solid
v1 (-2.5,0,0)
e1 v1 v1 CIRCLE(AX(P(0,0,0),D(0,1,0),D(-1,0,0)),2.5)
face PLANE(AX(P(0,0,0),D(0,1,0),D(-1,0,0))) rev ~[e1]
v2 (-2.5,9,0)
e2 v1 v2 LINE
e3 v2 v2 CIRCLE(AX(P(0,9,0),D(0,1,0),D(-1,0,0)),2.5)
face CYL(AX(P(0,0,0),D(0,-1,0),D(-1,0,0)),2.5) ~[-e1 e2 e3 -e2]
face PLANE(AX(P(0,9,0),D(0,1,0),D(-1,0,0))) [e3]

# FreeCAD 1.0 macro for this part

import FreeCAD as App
import Part
import Sketcher

doc = App.newDocument("Part")
body = doc.addObject("PartDesign::Body", "Body")

# Sketch on XZ plane
sketch1 = body.newObject("Sketcher::SketchObject", "Sketch")
sketch1.AttachmentSupport = (doc.getObject("XZ_Plane"), [""])
sketch1.MapMode = "FlatFace"
sketch1.addGeometry(Part.Circle(App.Vector(0, 0, 0), App.Vector(0, 0, 1), 2.5), False)
sketch1.addConstraint([
    Sketcher.Constraint("Coincident", 0, 3, -1, 1),
    Sketcher.Constraint("Diameter", 0, 5.0),
])
pad1 = body.newObject("PartDesign::Pad", "Pad")
pad1.Profile = sketch1
pad1.Length = 9
pad1.Reversed = True

doc.recompute()
